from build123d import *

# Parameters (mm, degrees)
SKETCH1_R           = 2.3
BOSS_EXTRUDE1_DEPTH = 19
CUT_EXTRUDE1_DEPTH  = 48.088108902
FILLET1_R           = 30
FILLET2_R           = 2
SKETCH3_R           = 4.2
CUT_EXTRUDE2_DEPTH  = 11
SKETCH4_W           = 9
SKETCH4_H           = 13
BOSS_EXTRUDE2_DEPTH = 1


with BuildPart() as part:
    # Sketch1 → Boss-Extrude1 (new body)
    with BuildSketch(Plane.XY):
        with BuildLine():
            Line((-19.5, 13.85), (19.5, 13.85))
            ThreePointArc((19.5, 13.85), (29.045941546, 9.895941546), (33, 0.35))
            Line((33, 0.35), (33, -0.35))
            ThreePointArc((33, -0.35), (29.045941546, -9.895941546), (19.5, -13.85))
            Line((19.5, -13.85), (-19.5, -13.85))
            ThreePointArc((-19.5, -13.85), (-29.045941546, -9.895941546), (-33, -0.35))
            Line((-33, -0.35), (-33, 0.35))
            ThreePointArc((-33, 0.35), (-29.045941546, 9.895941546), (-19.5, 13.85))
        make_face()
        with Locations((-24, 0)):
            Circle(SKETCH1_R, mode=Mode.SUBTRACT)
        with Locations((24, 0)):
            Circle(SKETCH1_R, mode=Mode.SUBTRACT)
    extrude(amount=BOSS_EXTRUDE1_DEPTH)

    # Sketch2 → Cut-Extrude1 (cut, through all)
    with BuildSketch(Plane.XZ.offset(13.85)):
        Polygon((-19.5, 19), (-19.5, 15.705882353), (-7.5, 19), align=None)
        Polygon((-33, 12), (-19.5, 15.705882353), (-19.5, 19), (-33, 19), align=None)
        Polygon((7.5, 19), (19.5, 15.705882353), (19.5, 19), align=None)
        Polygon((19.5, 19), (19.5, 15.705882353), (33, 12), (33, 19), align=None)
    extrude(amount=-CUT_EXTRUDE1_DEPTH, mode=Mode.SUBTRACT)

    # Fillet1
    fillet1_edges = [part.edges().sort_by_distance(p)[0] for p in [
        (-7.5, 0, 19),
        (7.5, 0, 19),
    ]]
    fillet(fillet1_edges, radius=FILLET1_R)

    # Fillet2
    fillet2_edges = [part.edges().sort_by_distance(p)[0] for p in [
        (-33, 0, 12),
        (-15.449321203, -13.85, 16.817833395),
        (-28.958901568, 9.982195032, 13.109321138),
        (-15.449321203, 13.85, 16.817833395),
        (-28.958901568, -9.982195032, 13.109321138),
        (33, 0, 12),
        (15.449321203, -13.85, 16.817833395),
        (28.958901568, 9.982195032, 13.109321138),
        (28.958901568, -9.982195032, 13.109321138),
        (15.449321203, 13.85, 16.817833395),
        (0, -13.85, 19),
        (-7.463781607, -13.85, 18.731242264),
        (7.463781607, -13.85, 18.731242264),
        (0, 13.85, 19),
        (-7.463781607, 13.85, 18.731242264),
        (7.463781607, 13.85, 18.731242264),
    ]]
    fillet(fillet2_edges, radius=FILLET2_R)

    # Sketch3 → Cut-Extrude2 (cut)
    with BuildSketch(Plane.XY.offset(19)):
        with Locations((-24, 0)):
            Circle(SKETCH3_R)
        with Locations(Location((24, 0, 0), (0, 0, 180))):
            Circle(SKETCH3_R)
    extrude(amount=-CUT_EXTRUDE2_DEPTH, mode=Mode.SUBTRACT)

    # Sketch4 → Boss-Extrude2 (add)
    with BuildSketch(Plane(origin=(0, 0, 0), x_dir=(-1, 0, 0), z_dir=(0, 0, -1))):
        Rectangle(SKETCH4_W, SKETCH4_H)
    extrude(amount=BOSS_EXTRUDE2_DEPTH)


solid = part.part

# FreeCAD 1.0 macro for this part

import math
import FreeCAD as App
import Part
import Sketcher


def edges_at(feature, points):
    """Names of the edges that pass closest to the given points."""
    edges = feature.Shape.Edges
    near = lambda p: min(range(len(edges)), key=lambda i: edges[i].distToShape(Part.Vertex(*p))[0])
    return sorted({f"Edge{near(p) + 1}" for p in points})

doc = App.newDocument("Part")
params = doc.addObject("Spreadsheet::Sheet", "Params")
for row, (alias, value) in enumerate([
    ("sketch1_diameter", "4.6 mm"),
    ("sketch1_radius", "13.5 mm"),
    ("sketch1_width", "39 mm"),
    ("sketch1_height", "0.7 mm"),
    ("pad1_length", "19 mm"),
    ("sketch2_height", "7 mm"),
    ("sketch2_width", "25.5 mm"),
    ("fillet_radius", "30 mm"),
    ("fillet2_radius", "2 mm"),
    ("sketch3_diameter", "8.4 mm"),
    ("pocket2_length", "11 mm"),
    ("sketch4_width", "9 mm"),
    ("sketch4_height", "13 mm"),
    ("pad2_length", "1 mm"),
], start=1):
    params.set(f"A{row}", alias)
    params.set(f"B{row}", "=" + value)
    params.setAlias(f"B{row}", alias)

body = doc.addObject("PartDesign::Body", "Body")

sketch1 = body.newObject("Sketcher::SketchObject", "Sketch")
sketch1.AttachmentSupport = (doc.getObject("XY_Plane"), [""])
sketch1.MapMode = "FlatFace"
sketch1.addGeometry([
    Part.LineSegment(App.Vector(19.5, 13.8, 0), App.Vector(-19.5, 13.8, 0)),
    Part.ArcOfCircle(Part.Circle(App.Vector(-19.5, 0.3, 0), App.Vector(0, 0, 1), 13.5), math.radians(90), math.radians(180)),
    Part.LineSegment(App.Vector(-33, 0.3, 0), App.Vector(-33, -0.3, 0)),
    Part.ArcOfCircle(Part.Circle(App.Vector(-19.5, -0.3, 0), App.Vector(0, 0, 1), 13.5), math.radians(180), math.radians(270)),
    Part.LineSegment(App.Vector(-19.5, -13.8, 0), App.Vector(19.5, -13.8, 0)),
    Part.ArcOfCircle(Part.Circle(App.Vector(19.5, -0.3, 0), App.Vector(0, 0, 1), 13.5), math.radians(-90), math.radians(0)),
    Part.LineSegment(App.Vector(33, -0.3, 0), App.Vector(33, 0.3, 0)),
    Part.ArcOfCircle(Part.Circle(App.Vector(19.5, 0.3, 0), App.Vector(0, 0, 1), 13.5), math.radians(0), math.radians(90)),
    Part.Circle(App.Vector(24, 0, 0), App.Vector(0, 0, 1), 2.3),
    Part.Circle(App.Vector(-24, 0, 0), App.Vector(0, 0, 1), 2.3),
], False)
sketch1.addConstraint([
    Sketcher.Constraint("Tangent", 0, 2, 1, 1),
    Sketcher.Constraint("Tangent", 1, 2, 2, 1),
    Sketcher.Constraint("Tangent", 2, 2, 3, 1),
    Sketcher.Constraint("Tangent", 3, 2, 4, 1),
    Sketcher.Constraint("Tangent", 4, 2, 5, 1),
    Sketcher.Constraint("Tangent", 5, 2, 6, 1),
    Sketcher.Constraint("Tangent", 6, 2, 7, 1),
    Sketcher.Constraint("Tangent", 7, 2, 0, 1),
    Sketcher.Constraint("Horizontal", 0),
    Sketcher.Constraint("Vertical", 2),
    Sketcher.Constraint("Horizontal", 4),
    Sketcher.Constraint("Vertical", 6),
    Sketcher.Constraint("Equal", 1, 3),
    Sketcher.Constraint("Equal", 3, 5),
    Sketcher.Constraint("Equal", 5, 7),
    Sketcher.Constraint("Equal", 8, 9),
    Sketcher.Constraint("Symmetric", 1, 3, 5, 3, -1, 1),
    Sketcher.Constraint("Symmetric", 8, 3, 9, 3, -1, 1),
    Sketcher.Constraint("PointOnObject", 8, 3, -1),
    Sketcher.Constraint("Diameter", 8, 4.6),
    Sketcher.Constraint("Radius", 1, 13.5),
    Sketcher.Constraint("DistanceX", 0, 2, 0, 1, 39.0),
    Sketcher.Constraint("DistanceY", 2, 2, 2, 1, 0.7),
    Sketcher.Constraint("DistanceX", -1, 1, 8, 3, 24.0),
])
sketch1.setExpression("Constraints[19]", "Params.sketch1_diameter")
sketch1.setExpression("Constraints[20]", "Params.sketch1_radius")
sketch1.setExpression("Constraints[21]", "Params.sketch1_width")
sketch1.setExpression("Constraints[22]", "Params.sketch1_height")
pad1 = body.newObject("PartDesign::Pad", "Pad")
pad1.Profile = sketch1
pad1.setExpression("Length", "Params.pad1_length")

sketch2 = body.newObject("Sketcher::SketchObject", "Sketch001")
sketch2.AttachmentSupport = (doc.getObject("XZ_Plane"), [""])
sketch2.MapMode = "FlatFace"
sketch2.AttachmentOffset = App.Placement(App.Vector(0, 0, 13.85), App.Rotation())
sketch2.addGeometry([
    Part.LineSegment(App.Vector(-20, 16, 0), App.Vector(-8, 19, 0)),
    Part.LineSegment(App.Vector(-8, 19, 0), App.Vector(-33, 19, 0)),
    Part.LineSegment(App.Vector(-33, 19, 0), App.Vector(-33, 12, 0)),
    Part.LineSegment(App.Vector(-33, 12, 0), App.Vector(-20, 16, 0)),
    Part.LineSegment(App.Vector(8, 19, 0), App.Vector(20, 16, 0)),
    Part.LineSegment(App.Vector(20, 16, 0), App.Vector(33, 12, 0)),
    Part.LineSegment(App.Vector(33, 12, 0), App.Vector(33, 19, 0)),
    Part.LineSegment(App.Vector(33, 19, 0), App.Vector(8, 19, 0)),
], False)
sketch2.addConstraint([
    Sketcher.Constraint("Coincident", 0, 2, 1, 1),
    Sketcher.Constraint("Coincident", 1, 2, 2, 1),
    Sketcher.Constraint("Coincident", 2, 2, 3, 1),
    Sketcher.Constraint("Coincident", 3, 2, 0, 1),
    Sketcher.Constraint("Coincident", 4, 2, 5, 1),
    Sketcher.Constraint("Coincident", 5, 2, 6, 1),
    Sketcher.Constraint("Coincident", 6, 2, 7, 1),
    Sketcher.Constraint("Coincident", 7, 2, 4, 1),
    Sketcher.Constraint("Horizontal", 1),
    Sketcher.Constraint("Vertical", 2),
    Sketcher.Constraint("Vertical", 6),
    Sketcher.Constraint("Horizontal", 7),
    Sketcher.Constraint("Symmetric", 3, 2, 4, 2, -2),
    Sketcher.Constraint("Symmetric", 2, 2, 5, 2, -2),
    Sketcher.Constraint("Symmetric", 0, 2, 7, 2, -2),
    Sketcher.Constraint("Parallel", 0, 3),
    Sketcher.Constraint("DistanceY", 2, 2, 2, 1, 7.0),
    Sketcher.Constraint("DistanceX", 1, 2, 1, 1, 25.5),
    Sketcher.Constraint("DistanceY", -1, 1, 0, 2, 19.0),
    Sketcher.Constraint("DistanceX", 1, 2, -1, 1, 33.0),
    Sketcher.Constraint("DistanceX", 3, 2, 0, 2, 12.0),
])
sketch2.setExpression("Constraints[16]", "Params.sketch2_height")
sketch2.setExpression("Constraints[17]", "Params.sketch2_width")
pocket1 = body.newObject("PartDesign::Pocket", "Pocket")
pocket1.Profile = sketch2
pocket1.Type = "ThroughAll"
doc.recompute()

fillet = body.newObject("PartDesign::Fillet", "Fillet")
fillet.Base = (pocket1, edges_at(pocket1, [(-7.5, 0, 19), (7.5, 0, 19)]))
fillet.setExpression("Radius", "Params.fillet_radius")
doc.recompute()

fillet2 = body.newObject("PartDesign::Fillet", "Fillet001")
fillet2.Base = (fillet, edges_at(fillet, [
    (-33, 0, 12),
    (-15.449, -13.85, 16.818),
    (-28.959, 9.982, 13.109),
    (-15.449, 13.85, 16.818),
    (-28.959, -9.982, 13.109),
    (33, 0, 12),
    (15.449, -13.85, 16.818),
    (28.959, 9.982, 13.109),
    (28.959, -9.982, 13.109),
    (15.449, 13.85, 16.818),
    (0, -13.85, 19),
    (-7.464, -13.85, 18.731),
    (7.464, -13.85, 18.731),
    (0, 13.85, 19),
    (-7.464, 13.85, 18.731),
    (7.464, 13.85, 18.731),
]))
fillet2.setExpression("Radius", "Params.fillet2_radius")

sketch3 = body.newObject("Sketcher::SketchObject", "Sketch002")
sketch3.AttachmentSupport = (doc.getObject("XY_Plane"), [""])
sketch3.MapMode = "FlatFace"
sketch3.AttachmentOffset = App.Placement(App.Vector(0, 0, 19), App.Rotation())
sketch3.addGeometry([
    Part.Circle(App.Vector(-24, 0, 0), App.Vector(0, 0, 1), 4.2),
    Part.Circle(App.Vector(24, 0, 0), App.Vector(0, 0, 1), 4.2),
], False)
sketch3.addConstraint([
    Sketcher.Constraint("Equal", 0, 1),
    Sketcher.Constraint("Symmetric", 0, 3, 1, 3, -1, 1),
    Sketcher.Constraint("PointOnObject", 0, 3, -1),
    Sketcher.Constraint("Diameter", 0, 8.4),
    Sketcher.Constraint("DistanceX", 0, 3, -1, 1, 24.0),
])
sketch3.setExpression("Constraints[3]", "Params.sketch3_diameter")
pocket2 = body.newObject("PartDesign::Pocket", "Pocket001")
pocket2.Profile = sketch3
pocket2.setExpression("Length", "Params.pocket2_length")

sketch4 = body.newObject("Sketcher::SketchObject", "Sketch003")
sketch4.AttachmentSupport = (doc.getObject("XY_Plane"), [""])
sketch4.MapMode = "FlatFace"
sketch4.addGeometry([
    Part.LineSegment(App.Vector(4, 6, 0), App.Vector(4, -6, 0)),
    Part.LineSegment(App.Vector(4, -6, 0), App.Vector(-4, -6, 0)),
    Part.LineSegment(App.Vector(-4, -6, 0), App.Vector(-4, 6, 0)),
    Part.LineSegment(App.Vector(-4, 6, 0), App.Vector(4, 6, 0)),
], False)
sketch4.addConstraint([
    Sketcher.Constraint("Coincident", 0, 2, 1, 1),
    Sketcher.Constraint("Coincident", 1, 2, 2, 1),
    Sketcher.Constraint("Coincident", 2, 2, 3, 1),
    Sketcher.Constraint("Coincident", 3, 2, 0, 1),
    Sketcher.Constraint("Vertical", 0),
    Sketcher.Constraint("Horizontal", 1),
    Sketcher.Constraint("Vertical", 2),
    Sketcher.Constraint("Horizontal", 3),
    Sketcher.Constraint("Symmetric", 0, 2, 2, 2, -1, 1),
    Sketcher.Constraint("DistanceX", 1, 2, 1, 1, 9.0),
    Sketcher.Constraint("DistanceY", 0, 2, 0, 1, 13.0),
])
sketch4.setExpression("Constraints[9]", "Params.sketch4_width")
sketch4.setExpression("Constraints[10]", "Params.sketch4_height")
pad2 = body.newObject("PartDesign::Pad", "Pad001")
pad2.Profile = sketch4
pad2.setExpression("Length", "Params.pad2_length")
pad2.Reversed = True

doc.recompute()
